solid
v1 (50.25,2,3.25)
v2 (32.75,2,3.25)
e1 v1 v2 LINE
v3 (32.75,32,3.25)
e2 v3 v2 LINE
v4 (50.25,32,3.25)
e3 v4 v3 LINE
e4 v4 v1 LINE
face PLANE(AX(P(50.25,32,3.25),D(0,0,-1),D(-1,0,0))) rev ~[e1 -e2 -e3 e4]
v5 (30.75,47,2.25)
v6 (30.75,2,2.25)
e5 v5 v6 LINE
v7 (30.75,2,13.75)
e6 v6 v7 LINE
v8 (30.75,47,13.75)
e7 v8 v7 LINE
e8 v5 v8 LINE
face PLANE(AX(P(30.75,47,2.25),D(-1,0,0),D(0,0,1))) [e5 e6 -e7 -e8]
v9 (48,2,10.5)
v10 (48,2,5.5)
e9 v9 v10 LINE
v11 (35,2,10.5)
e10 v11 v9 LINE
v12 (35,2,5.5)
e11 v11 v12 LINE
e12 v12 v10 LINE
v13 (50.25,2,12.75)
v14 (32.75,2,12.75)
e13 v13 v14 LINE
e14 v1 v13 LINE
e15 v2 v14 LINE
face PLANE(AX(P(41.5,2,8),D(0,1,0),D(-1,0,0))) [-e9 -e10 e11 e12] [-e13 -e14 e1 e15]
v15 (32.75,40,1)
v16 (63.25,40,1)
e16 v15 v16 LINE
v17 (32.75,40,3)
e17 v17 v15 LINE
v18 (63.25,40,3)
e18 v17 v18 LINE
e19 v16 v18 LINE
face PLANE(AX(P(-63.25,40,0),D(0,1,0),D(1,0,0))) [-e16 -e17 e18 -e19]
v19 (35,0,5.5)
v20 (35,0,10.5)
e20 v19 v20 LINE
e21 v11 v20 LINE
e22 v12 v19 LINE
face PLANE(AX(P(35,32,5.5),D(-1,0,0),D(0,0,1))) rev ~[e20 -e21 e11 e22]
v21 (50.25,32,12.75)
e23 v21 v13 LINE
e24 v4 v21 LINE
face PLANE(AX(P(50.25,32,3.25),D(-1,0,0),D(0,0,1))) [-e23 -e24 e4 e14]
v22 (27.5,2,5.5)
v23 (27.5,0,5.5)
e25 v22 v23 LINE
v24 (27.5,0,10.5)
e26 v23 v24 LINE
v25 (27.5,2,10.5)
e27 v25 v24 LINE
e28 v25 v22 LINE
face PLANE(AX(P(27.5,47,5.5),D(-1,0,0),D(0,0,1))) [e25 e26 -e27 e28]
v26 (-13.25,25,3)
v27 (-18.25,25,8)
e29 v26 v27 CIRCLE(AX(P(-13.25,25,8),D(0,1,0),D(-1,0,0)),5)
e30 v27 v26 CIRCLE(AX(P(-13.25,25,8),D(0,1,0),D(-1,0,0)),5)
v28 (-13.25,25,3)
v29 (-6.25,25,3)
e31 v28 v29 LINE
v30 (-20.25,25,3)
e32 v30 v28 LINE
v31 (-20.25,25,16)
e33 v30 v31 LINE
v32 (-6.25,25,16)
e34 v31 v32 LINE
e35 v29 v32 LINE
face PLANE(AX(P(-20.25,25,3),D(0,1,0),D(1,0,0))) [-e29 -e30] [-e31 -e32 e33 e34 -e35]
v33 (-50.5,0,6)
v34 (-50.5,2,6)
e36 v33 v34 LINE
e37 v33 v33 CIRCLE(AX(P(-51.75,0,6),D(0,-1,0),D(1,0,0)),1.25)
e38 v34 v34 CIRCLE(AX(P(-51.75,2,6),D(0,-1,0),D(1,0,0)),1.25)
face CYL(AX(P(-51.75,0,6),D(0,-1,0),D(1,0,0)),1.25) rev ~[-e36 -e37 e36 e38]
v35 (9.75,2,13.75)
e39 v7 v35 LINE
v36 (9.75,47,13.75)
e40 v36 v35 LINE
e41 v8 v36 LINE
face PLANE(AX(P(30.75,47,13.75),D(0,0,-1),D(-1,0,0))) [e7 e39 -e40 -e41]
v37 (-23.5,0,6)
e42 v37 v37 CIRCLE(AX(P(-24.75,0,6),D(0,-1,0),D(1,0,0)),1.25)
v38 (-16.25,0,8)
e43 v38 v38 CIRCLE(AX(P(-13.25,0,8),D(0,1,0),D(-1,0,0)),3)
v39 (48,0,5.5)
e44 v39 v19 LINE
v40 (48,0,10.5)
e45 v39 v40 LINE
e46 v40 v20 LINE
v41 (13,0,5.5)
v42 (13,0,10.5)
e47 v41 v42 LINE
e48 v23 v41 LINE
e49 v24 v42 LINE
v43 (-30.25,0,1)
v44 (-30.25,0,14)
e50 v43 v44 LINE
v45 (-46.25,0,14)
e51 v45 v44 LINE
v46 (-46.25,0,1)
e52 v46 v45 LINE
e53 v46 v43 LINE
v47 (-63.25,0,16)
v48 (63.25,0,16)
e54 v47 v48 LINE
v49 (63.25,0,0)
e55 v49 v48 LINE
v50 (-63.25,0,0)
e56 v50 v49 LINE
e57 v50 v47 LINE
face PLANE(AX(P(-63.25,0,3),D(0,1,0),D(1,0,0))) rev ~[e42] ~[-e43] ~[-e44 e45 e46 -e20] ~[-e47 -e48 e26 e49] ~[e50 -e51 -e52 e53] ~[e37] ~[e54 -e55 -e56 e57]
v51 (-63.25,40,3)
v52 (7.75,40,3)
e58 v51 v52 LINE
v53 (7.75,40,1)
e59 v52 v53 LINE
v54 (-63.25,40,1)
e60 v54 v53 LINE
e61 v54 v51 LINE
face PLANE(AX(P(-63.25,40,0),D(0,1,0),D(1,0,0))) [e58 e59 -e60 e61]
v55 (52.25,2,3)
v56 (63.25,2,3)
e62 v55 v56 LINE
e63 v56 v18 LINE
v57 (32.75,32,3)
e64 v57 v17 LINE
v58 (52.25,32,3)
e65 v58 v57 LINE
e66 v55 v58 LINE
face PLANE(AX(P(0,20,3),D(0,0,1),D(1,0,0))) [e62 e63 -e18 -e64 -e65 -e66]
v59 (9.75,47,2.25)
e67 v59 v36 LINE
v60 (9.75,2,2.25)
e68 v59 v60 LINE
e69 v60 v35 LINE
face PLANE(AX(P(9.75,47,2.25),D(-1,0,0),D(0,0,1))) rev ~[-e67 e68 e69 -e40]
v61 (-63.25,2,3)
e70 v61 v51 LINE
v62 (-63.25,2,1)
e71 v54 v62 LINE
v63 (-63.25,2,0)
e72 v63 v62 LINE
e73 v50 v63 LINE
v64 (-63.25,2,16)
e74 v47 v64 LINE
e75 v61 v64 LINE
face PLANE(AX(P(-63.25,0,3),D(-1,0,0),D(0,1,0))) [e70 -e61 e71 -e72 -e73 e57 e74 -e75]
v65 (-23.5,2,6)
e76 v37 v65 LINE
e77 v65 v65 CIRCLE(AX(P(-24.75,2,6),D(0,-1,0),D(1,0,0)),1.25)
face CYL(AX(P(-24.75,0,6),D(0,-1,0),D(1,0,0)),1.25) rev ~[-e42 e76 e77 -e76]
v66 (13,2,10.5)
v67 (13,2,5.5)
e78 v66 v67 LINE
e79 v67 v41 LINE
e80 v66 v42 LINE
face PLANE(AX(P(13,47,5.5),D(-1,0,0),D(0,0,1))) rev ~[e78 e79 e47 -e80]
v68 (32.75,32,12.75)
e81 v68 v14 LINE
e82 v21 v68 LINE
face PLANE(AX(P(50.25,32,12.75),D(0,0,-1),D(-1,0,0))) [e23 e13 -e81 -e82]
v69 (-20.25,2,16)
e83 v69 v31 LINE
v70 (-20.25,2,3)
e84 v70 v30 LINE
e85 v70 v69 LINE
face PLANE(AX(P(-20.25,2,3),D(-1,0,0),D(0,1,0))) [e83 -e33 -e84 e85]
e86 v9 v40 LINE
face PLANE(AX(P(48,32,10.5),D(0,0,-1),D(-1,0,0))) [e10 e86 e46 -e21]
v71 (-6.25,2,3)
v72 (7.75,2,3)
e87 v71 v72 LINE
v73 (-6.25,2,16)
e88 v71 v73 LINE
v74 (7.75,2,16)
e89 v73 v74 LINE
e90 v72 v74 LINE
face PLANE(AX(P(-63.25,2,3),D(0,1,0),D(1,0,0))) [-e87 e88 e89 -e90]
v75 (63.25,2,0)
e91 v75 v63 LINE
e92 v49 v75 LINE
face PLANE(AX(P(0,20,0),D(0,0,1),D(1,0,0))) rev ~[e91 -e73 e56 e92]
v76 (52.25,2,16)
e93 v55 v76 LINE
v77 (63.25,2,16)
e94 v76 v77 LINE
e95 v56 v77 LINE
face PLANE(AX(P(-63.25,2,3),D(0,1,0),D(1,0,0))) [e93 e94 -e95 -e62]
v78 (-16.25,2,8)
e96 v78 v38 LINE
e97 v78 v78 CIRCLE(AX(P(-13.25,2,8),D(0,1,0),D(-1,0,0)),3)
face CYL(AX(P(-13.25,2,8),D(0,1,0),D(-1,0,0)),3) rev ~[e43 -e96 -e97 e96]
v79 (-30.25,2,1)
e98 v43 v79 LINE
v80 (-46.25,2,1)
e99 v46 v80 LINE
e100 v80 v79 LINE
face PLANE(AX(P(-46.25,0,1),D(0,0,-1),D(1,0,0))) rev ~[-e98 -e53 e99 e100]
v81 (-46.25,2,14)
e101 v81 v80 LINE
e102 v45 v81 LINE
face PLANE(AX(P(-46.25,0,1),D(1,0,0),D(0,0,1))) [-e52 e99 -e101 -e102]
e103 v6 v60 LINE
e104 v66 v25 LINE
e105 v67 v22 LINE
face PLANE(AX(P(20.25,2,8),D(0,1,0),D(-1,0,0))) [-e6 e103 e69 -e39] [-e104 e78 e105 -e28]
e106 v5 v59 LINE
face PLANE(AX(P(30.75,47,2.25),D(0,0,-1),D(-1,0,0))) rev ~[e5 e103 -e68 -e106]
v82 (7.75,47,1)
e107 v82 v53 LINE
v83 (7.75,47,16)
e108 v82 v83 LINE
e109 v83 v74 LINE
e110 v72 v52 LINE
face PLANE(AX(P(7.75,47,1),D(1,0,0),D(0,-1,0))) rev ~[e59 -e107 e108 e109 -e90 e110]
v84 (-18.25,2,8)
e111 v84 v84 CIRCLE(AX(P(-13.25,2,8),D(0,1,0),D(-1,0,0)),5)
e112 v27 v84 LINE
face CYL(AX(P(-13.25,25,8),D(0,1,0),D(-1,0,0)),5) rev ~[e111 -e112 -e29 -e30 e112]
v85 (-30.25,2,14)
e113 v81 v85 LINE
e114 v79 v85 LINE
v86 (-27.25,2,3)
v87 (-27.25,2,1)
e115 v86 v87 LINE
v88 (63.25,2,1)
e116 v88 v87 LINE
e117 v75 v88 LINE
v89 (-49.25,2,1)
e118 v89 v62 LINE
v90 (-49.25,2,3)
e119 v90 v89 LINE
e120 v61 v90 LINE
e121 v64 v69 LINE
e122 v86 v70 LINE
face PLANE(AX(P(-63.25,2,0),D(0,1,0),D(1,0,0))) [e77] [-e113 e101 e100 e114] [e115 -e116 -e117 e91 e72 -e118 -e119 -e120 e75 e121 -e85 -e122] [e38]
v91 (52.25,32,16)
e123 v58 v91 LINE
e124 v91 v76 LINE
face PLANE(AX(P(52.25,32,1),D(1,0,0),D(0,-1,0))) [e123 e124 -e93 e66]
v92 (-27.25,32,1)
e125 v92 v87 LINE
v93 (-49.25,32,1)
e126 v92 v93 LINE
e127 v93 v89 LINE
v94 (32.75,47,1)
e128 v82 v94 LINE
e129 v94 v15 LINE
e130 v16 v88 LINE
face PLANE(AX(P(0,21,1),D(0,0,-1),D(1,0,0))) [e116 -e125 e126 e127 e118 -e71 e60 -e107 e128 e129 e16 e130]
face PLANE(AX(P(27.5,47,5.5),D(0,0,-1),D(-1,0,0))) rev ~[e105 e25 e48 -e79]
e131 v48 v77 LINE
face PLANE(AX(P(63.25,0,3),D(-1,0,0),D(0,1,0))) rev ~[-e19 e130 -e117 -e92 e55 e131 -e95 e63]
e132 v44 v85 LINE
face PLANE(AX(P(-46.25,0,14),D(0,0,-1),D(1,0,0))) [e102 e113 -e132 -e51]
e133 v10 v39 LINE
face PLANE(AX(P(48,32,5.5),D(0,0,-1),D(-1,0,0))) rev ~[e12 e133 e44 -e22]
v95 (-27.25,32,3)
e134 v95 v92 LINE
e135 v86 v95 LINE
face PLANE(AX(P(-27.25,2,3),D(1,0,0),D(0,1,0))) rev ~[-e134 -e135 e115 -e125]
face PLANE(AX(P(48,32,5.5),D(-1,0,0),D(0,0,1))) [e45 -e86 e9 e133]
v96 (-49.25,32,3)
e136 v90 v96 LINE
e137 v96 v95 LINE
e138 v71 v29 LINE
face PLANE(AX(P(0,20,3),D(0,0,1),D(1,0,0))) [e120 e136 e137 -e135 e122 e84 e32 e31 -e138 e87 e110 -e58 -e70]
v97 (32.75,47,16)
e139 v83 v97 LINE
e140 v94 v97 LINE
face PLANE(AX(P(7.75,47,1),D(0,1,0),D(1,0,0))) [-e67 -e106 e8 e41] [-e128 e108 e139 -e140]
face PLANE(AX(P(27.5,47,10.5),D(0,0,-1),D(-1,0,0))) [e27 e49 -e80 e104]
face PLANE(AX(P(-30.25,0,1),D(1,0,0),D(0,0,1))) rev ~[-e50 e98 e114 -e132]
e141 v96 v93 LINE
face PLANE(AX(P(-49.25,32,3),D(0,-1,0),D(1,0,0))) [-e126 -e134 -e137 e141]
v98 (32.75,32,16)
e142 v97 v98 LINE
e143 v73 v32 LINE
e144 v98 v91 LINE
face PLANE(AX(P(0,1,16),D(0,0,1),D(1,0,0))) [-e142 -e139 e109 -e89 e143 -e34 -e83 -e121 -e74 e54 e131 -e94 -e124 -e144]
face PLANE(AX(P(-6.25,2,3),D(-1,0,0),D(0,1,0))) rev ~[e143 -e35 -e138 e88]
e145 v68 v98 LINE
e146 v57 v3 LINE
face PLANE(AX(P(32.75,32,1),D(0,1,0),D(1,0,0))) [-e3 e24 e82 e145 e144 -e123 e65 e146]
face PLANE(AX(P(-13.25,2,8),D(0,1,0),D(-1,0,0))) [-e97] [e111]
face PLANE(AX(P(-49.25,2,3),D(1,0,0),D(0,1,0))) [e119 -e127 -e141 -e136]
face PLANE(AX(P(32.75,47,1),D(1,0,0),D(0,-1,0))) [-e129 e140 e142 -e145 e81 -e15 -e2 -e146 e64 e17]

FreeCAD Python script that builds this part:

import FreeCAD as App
import Part
import Sketcher

V = App.Vector
Q = App.Units.Quantity


def add_polygon(sketch, points):
    """Adds a closed chain of lines whose ends are joined by coincident constraints."""
    first, n = sketch.GeometryCount, len(points)
    for a, b in zip(points, points[1:] + points[:1]):
        sketch.addGeometry(Part.LineSegment(App.Vector(*a, 0), App.Vector(*b, 0)), False)
    for i in range(n):
        sketch.addConstraint(Sketcher.Constraint("Coincident", first + i, 2, first + (i + 1) % n, 1))

doc = App.newDocument("Part")
body = doc.addObject("PartDesign::Body", "Body")

# Sketch on XY plane
sketch1 = body.newObject("Sketcher::SketchObject", "Sketch")
sketch1.AttachmentSupport = (doc.getObject("XY_Plane"), [""])
sketch1.MapMode = "FlatFace"
add_polygon(sketch1, [(-63, 40), (-63, 0), (63, 0), (63, 40)])  # lines 0-3
sketch1.addConstraint(Sketcher.Constraint("Vertical", 0))
sketch1.addConstraint(Sketcher.Constraint("Horizontal", 1))
sketch1.addConstraint(Sketcher.Constraint("Vertical", 2))
sketch1.addConstraint(Sketcher.Constraint("Horizontal", 3))
sketch1.addConstraint(Sketcher.Constraint("Symmetric", 0, 2, 1, 2, -1, 1))
sketch1.addConstraint(Sketcher.Constraint("DistanceY", 0, 2, 0, 1, Q("40 mm")))
sketch1.addConstraint(Sketcher.Constraint("DistanceX", 1, 1, 1, 2, Q("126.5 mm")))
pad1 = body.newObject("PartDesign::Pad", "Pad")
pad1.Profile = sketch1
pad1.Length = 3

# Sketch on XY plane
sketch2 = body.newObject("Sketcher::SketchObject", "Sketch001")
sketch2.AttachmentSupport = (doc.getObject("XY_Plane"), [""])
sketch2.MapMode = "FlatFace"
add_polygon(sketch2, [(-63, 2), (-63, 40), (63, 40), (63, 2)])  # lines 0-3
sketch2.addConstraint(Sketcher.Constraint("Vertical", 0))
sketch2.addConstraint(Sketcher.Constraint("Horizontal", 1))
sketch2.addConstraint(Sketcher.Constraint("Vertical", 2))
sketch2.addConstraint(Sketcher.Constraint("Horizontal", 3))
sketch2.addConstraint(Sketcher.Constraint("DistanceY", 0, 1, 0, 2, Q("38 mm")))
sketch2.addConstraint(Sketcher.Constraint("DistanceX", 1, 1, 1, 2, Q("126.5 mm")))
sketch2.addConstraint(Sketcher.Constraint("DistanceY", -1, 1, 0, 2, Q("40 mm")))
sketch2.addConstraint(Sketcher.Constraint("DistanceX", 0, 2, -1, 1, Q("63.25 mm")))
pocket1 = body.newObject("PartDesign::Pocket", "Pocket")
pocket1.Profile = sketch2
pocket1.Length = 1
pocket1.Reversed = True

# Sketch on XY plane
sketch3 = body.newObject("Sketcher::SketchObject", "Sketch002")
sketch3.AttachmentSupport = (doc.getObject("XY_Plane"), [""])
sketch3.MapMode = "FlatFace"
sketch3.AttachmentOffset = App.Placement(V(0, 0, 3), App.Rotation())
add_polygon(sketch3, [(-63.2, 2), (-63.2, 0), (63.2, 0), (63.2, 2)])  # lines 0-3
sketch3.addConstraint(Sketcher.Constraint("Vertical", 0))
sketch3.addConstraint(Sketcher.Constraint("Horizontal", 1))
sketch3.addConstraint(Sketcher.Constraint("Vertical", 2))
sketch3.addConstraint(Sketcher.Constraint("Horizontal", 3))
sketch3.addConstraint(Sketcher.Constraint("Symmetric", 0, 2, 1, 2, -1, 1))
sketch3.addConstraint(Sketcher.Constraint("DistanceY", 0, 2, 0, 1, Q("2 mm")))
sketch3.addConstraint(Sketcher.Constraint("DistanceX", 1, 1, 1, 2, Q("126.5 mm")))
pad2 = body.newObject("PartDesign::Pad", "Pad001")
pad2.Profile = sketch3
pad2.Length = 13

# Sketch on XY plane
sketch4 = body.newObject("Sketcher::SketchObject", "Sketch003")
sketch4.AttachmentSupport = (doc.getObject("XY_Plane"), [""])
sketch4.MapMode = "FlatFace"
sketch4.AttachmentOffset = App.Placement(V(0, 0, 1), App.Rotation())
add_polygon(sketch4, [(33, 32), (52, 32), (52, 2), (8, 2), (8, 47), (33, 47)])  # lines 0-5
sketch4.addConstraint(Sketcher.Constraint("Horizontal", 0))
sketch4.addConstraint(Sketcher.Constraint("Vertical", 1))
sketch4.addConstraint(Sketcher.Constraint("Horizontal", 2))
sketch4.addConstraint(Sketcher.Constraint("Vertical", 3))
sketch4.addConstraint(Sketcher.Constraint("Horizontal", 4))
sketch4.addConstraint(Sketcher.Constraint("Vertical", 5))
sketch4.addConstraint(Sketcher.Constraint("DistanceX", 4, 1, 4, 2, Q("25 mm")))
sketch4.addConstraint(Sketcher.Constraint("DistanceY", 1, 2, 1, 1, Q("30 mm")))
sketch4.addConstraint(Sketcher.Constraint("DistanceY", 3, 1, 3, 2, Q("45 mm")))
sketch4.addConstraint(Sketcher.Constraint("DistanceX", 0, 1, 0, 2, Q("19.5 mm")))
sketch4.addConstraint(Sketcher.Constraint("DistanceY", -1, 1, 0, 2, Q("32 mm")))
sketch4.addConstraint(Sketcher.Constraint("DistanceX", -1, 1, 0, 2, Q("52.25 mm")))
pad3 = body.newObject("PartDesign::Pad", "Pad002")
pad3.Profile = sketch4
pad3.Length = 15

# Sketch on XZ plane
sketch5 = body.newObject("Sketcher::SketchObject", "Sketch004")
sketch5.AttachmentSupport = (doc.getObject("XZ_Plane"), [""])
sketch5.MapMode = "FlatFace"
sketch5.AttachmentOffset = App.Placement(V(0, 0, -32), App.Rotation())
add_polygon(sketch5, [(48, 10), (48, 6), (35, 6), (35, 10)])  # lines 0-3
sketch5.addConstraint(Sketcher.Constraint("Vertical", 0))
sketch5.addConstraint(Sketcher.Constraint("Horizontal", 1))
sketch5.addConstraint(Sketcher.Constraint("Vertical", 2))
sketch5.addConstraint(Sketcher.Constraint("Horizontal", 3))
sketch5.addConstraint(Sketcher.Constraint("DistanceX", 1, 2, 1, 1, Q("13 mm")))
sketch5.addConstraint(Sketcher.Constraint("DistanceY", 0, 2, 0, 1, Q("5 mm")))
sketch5.addConstraint(Sketcher.Constraint("DistanceX", -1, 1, 0, 2, Q("48 mm")))
sketch5.addConstraint(Sketcher.Constraint("DistanceY", -1, 1, 0, 2, Q("5.5 mm")))
pocket2 = body.newObject("PartDesign::Pocket", "Pocket001")
pocket2.Profile = sketch5
pocket2.Type = "ThroughAll"
pocket2.Reversed = True

# Sketch on XZ plane
sketch6 = body.newObject("Sketcher::SketchObject", "Sketch005")
sketch6.AttachmentSupport = (doc.getObject("XZ_Plane"), [""])
sketch6.MapMode = "FlatFace"
sketch6.AttachmentOffset = App.Placement(V(0, 0, -32), App.Rotation())
add_polygon(sketch6, [(50, 13), (50, 3), (33, 3), (33, 13)])  # lines 0-3
sketch6.addConstraint(Sketcher.Constraint("Vertical", 0))
sketch6.addConstraint(Sketcher.Constraint("Horizontal", 1))
sketch6.addConstraint(Sketcher.Constraint("Vertical", 2))
sketch6.addConstraint(Sketcher.Constraint("Horizontal", 3))
sketch6.addConstraint(Sketcher.Constraint("DistanceX", 1, 2, 1, 1, Q("17.5 mm")))
sketch6.addConstraint(Sketcher.Constraint("DistanceY", 0, 2, 0, 1, Q("9.5 mm")))
sketch6.addConstraint(Sketcher.Constraint("DistanceX", -1, 1, 0, 2, Q("50.25 mm")))
sketch6.addConstraint(Sketcher.Constraint("DistanceY", -1, 1, 0, 2, Q("3.25 mm")))
pocket3 = body.newObject("PartDesign::Pocket", "Pocket002")
pocket3.Profile = sketch6
pocket3.Length = 30
pocket3.Reversed = True

# Sketch on XZ plane
sketch7 = body.newObject("Sketcher::SketchObject", "Sketch006")
sketch7.AttachmentSupport = (doc.getObject("XZ_Plane"), [""])
sketch7.MapMode = "FlatFace"
sketch7.AttachmentOffset = App.Placement(V(0, 0, -47), App.Rotation())
add_polygon(sketch7, [(28, 10), (28, 6), (13, 6), (13, 10)])  # lines 0-3
sketch7.addConstraint(Sketcher.Constraint("Vertical", 0))
sketch7.addConstraint(Sketcher.Constraint("Horizontal", 1))
sketch7.addConstraint(Sketcher.Constraint("Vertical", 2))
sketch7.addConstraint(Sketcher.Constraint("Horizontal", 3))
sketch7.addConstraint(Sketcher.Constraint("DistanceY", 0, 2, 0, 1, Q("5 mm")))
sketch7.addConstraint(Sketcher.Constraint("DistanceX", 1, 2, 1, 1, Q("14.5 mm")))
sketch7.addConstraint(Sketcher.Constraint("DistanceX", -1, 1, 1, 2, Q("13 mm")))
sketch7.addConstraint(Sketcher.Constraint("DistanceY", -1, 1, 0, 2, Q("5.5 mm")))
pocket4 = body.newObject("PartDesign::Pocket", "Pocket003")
pocket4.Profile = sketch7
pocket4.Type = "ThroughAll"
pocket4.Reversed = True

# Sketch on XZ plane
sketch8 = body.newObject("Sketcher::SketchObject", "Sketch007")
sketch8.AttachmentSupport = (doc.getObject("XZ_Plane"), [""])
sketch8.MapMode = "FlatFace"
sketch8.AttachmentOffset = App.Placement(V(0, 0, -47), App.Rotation())
add_polygon(sketch8, [(31, 14), (31, 2), (10, 2), (10, 14)])  # lines 0-3
sketch8.addConstraint(Sketcher.Constraint("Vertical", 0))
sketch8.addConstraint(Sketcher.Constraint("Horizontal", 1))
sketch8.addConstraint(Sketcher.Constraint("Vertical", 2))
sketch8.addConstraint(Sketcher.Constraint("Horizontal", 3))
sketch8.addConstraint(Sketcher.Constraint("DistanceX", 1, 2, 1, 1, Q("21 mm")))
sketch8.addConstraint(Sketcher.Constraint("DistanceY", 0, 2, 0, 1, Q("11.5 mm")))
sketch8.addConstraint(Sketcher.Constraint("DistanceX", -1, 1, 0, 2, Q("30.75 mm")))
sketch8.addConstraint(Sketcher.Constraint("DistanceY", -1, 1, 0, 2, Q("2.25 mm")))
pocket5 = body.newObject("PartDesign::Pocket", "Pocket004")
pocket5.Profile = sketch8
pocket5.Length = 45
pocket5.Reversed = True

# Sketch on XY plane
sketch9 = body.newObject("Sketcher::SketchObject", "Sketch008")
sketch9.AttachmentSupport = (doc.getObject("XY_Plane"), [""])
sketch9.MapMode = "FlatFace"
sketch9.AttachmentOffset = App.Placement(V(0, 0, 3), App.Rotation())
add_polygon(sketch9, [(-20, 25), (-20, 2), (-6, 2), (-6, 25)])  # lines 0-3
sketch9.addConstraint(Sketcher.Constraint("Vertical", 0))
sketch9.addConstraint(Sketcher.Constraint("Horizontal", 1))
sketch9.addConstraint(Sketcher.Constraint("Vertical", 2))
sketch9.addConstraint(Sketcher.Constraint("Horizontal", 3))
sketch9.addConstraint(Sketcher.Constraint("DistanceX", 1, 1, 1, 2, Q("14 mm")))
sketch9.addConstraint(Sketcher.Constraint("DistanceY", 0, 2, 0, 1, Q("23 mm")))
sketch9.addConstraint(Sketcher.Constraint("DistanceY", -1, 1, 0, 2, Q("2 mm")))
sketch9.addConstraint(Sketcher.Constraint("DistanceX", 0, 2, -1, 1, Q("20.25 mm")))
pad4 = body.newObject("PartDesign::Pad", "Pad003")
pad4.Profile = sketch9
pad4.Length = 13

# Sketch on XZ plane
sketch10 = body.newObject("Sketcher::SketchObject", "Sketch009")
sketch10.AttachmentSupport = (doc.getObject("XZ_Plane"), [""])
sketch10.MapMode = "FlatFace"
sketch10.AttachmentOffset = App.Placement(V(0, 0, -25), App.Rotation())
sketch10.addGeometry(Part.Circle(V(-13, 8, 0), V(0, 0, 1), 5), False)
sketch10.addConstraint(Sketcher.Constraint("Diameter", 0, Q("10 mm")))
sketch10.addConstraint(Sketcher.Constraint("DistanceY", -1, 1, 0, 3, Q("8 mm")))
sketch10.addConstraint(Sketcher.Constraint("DistanceX", 0, 3, -1, 1, Q("13.25 mm")))
pocket6 = body.newObject("PartDesign::Pocket", "Pocket005")
pocket6.Profile = sketch10
pocket6.Length = 23
pocket6.Reversed = True

# Sketch on XZ plane
sketch11 = body.newObject("Sketcher::SketchObject", "Sketch010")
sketch11.AttachmentSupport = (doc.getObject("XZ_Plane"), [""])
sketch11.MapMode = "FlatFace"
sketch11.AttachmentOffset = App.Placement(V(0, 0, -2), App.Rotation())
sketch11.addGeometry(Part.Circle(V(-13.2, 8, 0), V(0, 0, 1), 3), False)
sketch11.addConstraint(Sketcher.Constraint("Diameter", 0, Q("6 mm")))
sketch11.addConstraint(Sketcher.Constraint("DistanceY", -1, 1, 0, 3, Q("8 mm")))
sketch11.addConstraint(Sketcher.Constraint("DistanceX", 0, 3, -1, 1, Q("13.25 mm")))
pocket7 = body.newObject("PartDesign::Pocket", "Pocket006")
pocket7.Profile = sketch11
pocket7.Type = "ThroughAll"
pocket7.Reversed = True

# Sketch on XZ plane
sketch12 = body.newObject("Sketcher::SketchObject", "Sketch011")
sketch12.AttachmentSupport = (doc.getObject("XZ_Plane"), [""])
sketch12.MapMode = "FlatFace"
sketch12.addGeometry(Part.Circle(V(-24.8, 6, 0), V(0, 0, 1), 1.2), False)  # 0
sketch12.addGeometry(Part.Circle(V(-51.8, 6, 0), V(0, 0, 1), 1.2), False)  # 1
add_polygon(sketch12, [(-46.2, 14), (-46.2, 1), (-30.2, 1), (-30.2, 14)])  # lines 2-5
sketch12.addConstraint(Sketcher.Constraint("Vertical", 2))
sketch12.addConstraint(Sketcher.Constraint("Horizontal", 3))
sketch12.addConstraint(Sketcher.Constraint("Vertical", 4))
sketch12.addConstraint(Sketcher.Constraint("Horizontal", 5))
sketch12.addConstraint(Sketcher.Constraint("Equal", 0, 1))
sketch12.addConstraint(Sketcher.Constraint("Horizontal", 0, 3, 1, 3))
sketch12.addConstraint(Sketcher.Constraint("Diameter", 0, Q("2.5 mm")))
sketch12.addConstraint(Sketcher.Constraint("DistanceX", 3, 1, 3, 2, Q("16 mm")))
sketch12.addConstraint(Sketcher.Constraint("DistanceY", 2, 2, 2, 1, Q("13 mm")))
sketch12.addConstraint(Sketcher.Constraint("DistanceY", -1, 1, 0, 3, Q("6 mm")))
sketch12.addConstraint(Sketcher.Constraint("DistanceY", -1, 1, 2, 2, Q("1 mm")))
sketch12.addConstraint(Sketcher.Constraint("DistanceX", 1, 3, 0, 3, Q("27 mm")))
sketch12.addConstraint(Sketcher.Constraint("DistanceX", 1, 3, 2, 2, Q("5.5 mm")))
sketch12.addConstraint(Sketcher.Constraint("DistanceX", 0, 3, -1, 1, Q("24.75 mm")))
pocket8 = body.newObject("PartDesign::Pocket", "Pocket007")
pocket8.Profile = sketch12
pocket8.Length = 2

# Sketch on XY plane
sketch13 = body.newObject("Sketcher::SketchObject", "Sketch012")
sketch13.AttachmentSupport = (doc.getObject("XY_Plane"), [""])
sketch13.MapMode = "FlatFace"
sketch13.AttachmentOffset = App.Placement(V(0, 0, 3), App.Rotation())
add_polygon(sketch13, [(-49, 32), (-49, 2), (-27, 2), (-27, 32)])  # lines 0-3
sketch13.addConstraint(Sketcher.Constraint("Vertical", 0))
sketch13.addConstraint(Sketcher.Constraint("Horizontal", 1))
sketch13.addConstraint(Sketcher.Constraint("Vertical", 2))
sketch13.addConstraint(Sketcher.Constraint("Horizontal", 3))
sketch13.addConstraint(Sketcher.Constraint("DistanceX", 1, 1, 1, 2, Q("22 mm")))
sketch13.addConstraint(Sketcher.Constraint("DistanceY", 0, 2, 0, 1, Q("30 mm")))
sketch13.addConstraint(Sketcher.Constraint("DistanceY", -1, 1, 0, 2, Q("2 mm")))
sketch13.addConstraint(Sketcher.Constraint("DistanceX", 0, 2, -1, 1, Q("49.25 mm")))
pocket9 = body.newObject("PartDesign::Pocket", "Pocket008")
pocket9.Profile = sketch13
pocket9.Type = "ThroughAll"

doc.recompute()
